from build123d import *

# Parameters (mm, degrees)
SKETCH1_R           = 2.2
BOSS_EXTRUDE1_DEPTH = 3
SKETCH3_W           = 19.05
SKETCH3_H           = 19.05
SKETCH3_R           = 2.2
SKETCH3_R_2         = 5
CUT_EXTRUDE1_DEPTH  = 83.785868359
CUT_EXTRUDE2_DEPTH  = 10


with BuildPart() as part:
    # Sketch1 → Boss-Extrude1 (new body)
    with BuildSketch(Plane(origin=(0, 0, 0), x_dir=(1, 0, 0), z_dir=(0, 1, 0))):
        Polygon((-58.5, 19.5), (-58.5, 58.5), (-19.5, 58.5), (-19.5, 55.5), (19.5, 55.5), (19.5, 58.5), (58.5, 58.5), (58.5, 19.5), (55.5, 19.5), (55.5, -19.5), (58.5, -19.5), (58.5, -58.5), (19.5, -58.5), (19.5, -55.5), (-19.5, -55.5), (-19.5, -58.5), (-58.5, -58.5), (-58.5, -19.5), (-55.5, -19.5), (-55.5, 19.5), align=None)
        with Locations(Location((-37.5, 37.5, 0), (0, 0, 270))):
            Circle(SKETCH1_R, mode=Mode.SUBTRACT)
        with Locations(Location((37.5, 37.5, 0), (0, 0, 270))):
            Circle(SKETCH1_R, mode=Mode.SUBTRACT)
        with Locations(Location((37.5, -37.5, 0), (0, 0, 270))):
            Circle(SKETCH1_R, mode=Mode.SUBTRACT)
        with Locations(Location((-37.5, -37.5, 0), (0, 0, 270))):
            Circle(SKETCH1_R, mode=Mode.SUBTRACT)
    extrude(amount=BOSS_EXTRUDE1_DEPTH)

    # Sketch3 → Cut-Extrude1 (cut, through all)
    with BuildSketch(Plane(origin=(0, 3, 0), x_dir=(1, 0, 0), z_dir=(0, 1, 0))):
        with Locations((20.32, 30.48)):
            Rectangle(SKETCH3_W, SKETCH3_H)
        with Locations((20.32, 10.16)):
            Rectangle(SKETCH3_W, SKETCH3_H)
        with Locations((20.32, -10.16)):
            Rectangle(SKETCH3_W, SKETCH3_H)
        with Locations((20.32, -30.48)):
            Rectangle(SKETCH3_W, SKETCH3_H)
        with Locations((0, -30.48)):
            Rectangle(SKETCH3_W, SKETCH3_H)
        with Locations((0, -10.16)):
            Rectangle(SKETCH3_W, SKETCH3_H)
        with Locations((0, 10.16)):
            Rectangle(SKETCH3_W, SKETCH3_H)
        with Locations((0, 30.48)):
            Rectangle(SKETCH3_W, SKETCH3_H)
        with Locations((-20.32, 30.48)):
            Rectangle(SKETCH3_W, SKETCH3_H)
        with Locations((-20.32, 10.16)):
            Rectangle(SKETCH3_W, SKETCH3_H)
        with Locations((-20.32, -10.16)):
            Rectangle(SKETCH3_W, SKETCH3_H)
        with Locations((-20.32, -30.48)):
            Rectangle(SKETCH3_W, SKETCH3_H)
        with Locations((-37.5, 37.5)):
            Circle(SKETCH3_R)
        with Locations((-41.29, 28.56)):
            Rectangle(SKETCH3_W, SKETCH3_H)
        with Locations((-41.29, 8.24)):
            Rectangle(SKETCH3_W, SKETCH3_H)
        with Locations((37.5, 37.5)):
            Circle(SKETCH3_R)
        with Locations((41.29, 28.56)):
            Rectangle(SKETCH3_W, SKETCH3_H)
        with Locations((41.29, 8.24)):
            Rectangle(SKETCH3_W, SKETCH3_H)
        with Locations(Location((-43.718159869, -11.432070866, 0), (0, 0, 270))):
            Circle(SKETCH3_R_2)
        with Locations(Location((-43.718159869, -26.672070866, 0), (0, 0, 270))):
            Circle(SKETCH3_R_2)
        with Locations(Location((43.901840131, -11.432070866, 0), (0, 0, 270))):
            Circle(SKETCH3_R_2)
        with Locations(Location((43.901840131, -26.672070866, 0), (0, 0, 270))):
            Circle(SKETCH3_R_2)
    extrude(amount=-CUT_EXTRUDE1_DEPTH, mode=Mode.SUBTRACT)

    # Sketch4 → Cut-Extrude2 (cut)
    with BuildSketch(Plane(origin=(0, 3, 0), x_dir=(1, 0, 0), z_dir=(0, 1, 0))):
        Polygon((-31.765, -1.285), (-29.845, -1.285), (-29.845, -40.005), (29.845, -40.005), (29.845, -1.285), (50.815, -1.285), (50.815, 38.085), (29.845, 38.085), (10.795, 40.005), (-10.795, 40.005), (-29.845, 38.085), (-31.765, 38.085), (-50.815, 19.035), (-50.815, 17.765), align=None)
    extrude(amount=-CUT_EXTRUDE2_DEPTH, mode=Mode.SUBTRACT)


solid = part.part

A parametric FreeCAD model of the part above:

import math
import FreeCAD as App
import Part
import Sketcher

V = App.Vector
Q = App.Units.Quantity


def add_polygon(sketch, points):
    """Adds a closed chain of lines whose ends are joined by coincident constraints."""
    first, n = sketch.GeometryCount, len(points)
    for a, b in zip(points, points[1:] + points[:1]):
        sketch.addGeometry(Part.LineSegment(App.Vector(*a, 0), App.Vector(*b, 0)), False)
    for i in range(n):
        sketch.addConstraint(Sketcher.Constraint("Coincident", first + i, 2, first + (i + 1) % n, 1))

doc = App.newDocument("Part")
body = doc.addObject("PartDesign::Body", "Body")

# Sketch on XZ plane
sketch1 = body.newObject("Sketcher::SketchObject", "Sketch")
sketch1.AttachmentSupport = (doc.getObject("XZ_Plane"), [""])
sketch1.MapMode = "FlatFace"
add_polygon(sketch1, [(-58.5, -58.5), (-58.5, -19.5), (-55.5, -19.5), (-55.5, 19.5), (-58.5, 19.5), (-58.5, 58.5), (-19.5, 58.5), (-19.5, 55.5), (19.5, 55.5), (19.5, 58.5), (58.5, 58.5), (58.5, 19.5), (55.5, 19.5), (55.5, -19.5), (58.5, -19.5), (58.5, -58.5), (19.5, -58.5), (19.5, -55.5), (-19.5, -55.5), (-19.5, -58.5)])  # lines 0-19
sketch1.addGeometry(Part.Circle(V(37.5, 37.5, 0), V(0, 0, 1), 2.2), False)  # 20
sketch1.addGeometry(Part.Circle(V(-37.5, 37.5, 0), V(0, 0, 1), 2.2), False)  # 21
sketch1.addGeometry(Part.Circle(V(37.5, -37.5, 0), V(0, 0, 1), 2.2), False)  # 22
sketch1.addGeometry(Part.Circle(V(-37.5, -37.5, 0), V(0, 0, 1), 2.2), False)  # 23
sketch1.addConstraint(Sketcher.Constraint("Vertical", 0))
sketch1.addConstraint(Sketcher.Constraint("Horizontal", 1))
sketch1.addConstraint(Sketcher.Constraint("Vertical", 2))
sketch1.addConstraint(Sketcher.Constraint("Horizontal", 3))
sketch1.addConstraint(Sketcher.Constraint("Vertical", 4))
sketch1.addConstraint(Sketcher.Constraint("Horizontal", 5))
sketch1.addConstraint(Sketcher.Constraint("Vertical", 6))
sketch1.addConstraint(Sketcher.Constraint("Horizontal", 7))
sketch1.addConstraint(Sketcher.Constraint("Vertical", 8))
sketch1.addConstraint(Sketcher.Constraint("Horizontal", 9))
sketch1.addConstraint(Sketcher.Constraint("Vertical", 10))
sketch1.addConstraint(Sketcher.Constraint("Horizontal", 11))
sketch1.addConstraint(Sketcher.Constraint("Vertical", 12))
sketch1.addConstraint(Sketcher.Constraint("Horizontal", 13))
sketch1.addConstraint(Sketcher.Constraint("Vertical", 14))
sketch1.addConstraint(Sketcher.Constraint("Horizontal", 15))
sketch1.addConstraint(Sketcher.Constraint("Vertical", 16))
sketch1.addConstraint(Sketcher.Constraint("Horizontal", 17))
sketch1.addConstraint(Sketcher.Constraint("Vertical", 18))
sketch1.addConstraint(Sketcher.Constraint("Horizontal", 19))
sketch1.addConstraint(Sketcher.Constraint("Equal", 20, 21))
sketch1.addConstraint(Sketcher.Constraint("Equal", 21, 22))
sketch1.addConstraint(Sketcher.Constraint("Equal", 22, 23))
sketch1.addConstraint(Sketcher.Constraint("Symmetric", 21, 3, 22, 3, -1, 1))
sketch1.addConstraint(Sketcher.Constraint("Symmetric", 20, 3, 23, 3, -1, 1))
sketch1.addConstraint(Sketcher.Constraint("Symmetric", 0, 2, 10, 2, -1, 1))
sketch1.addConstraint(Sketcher.Constraint("Symmetric", 2, 2, 12, 2, -1, 1))
sketch1.addConstraint(Sketcher.Constraint("Symmetric", 4, 2, 14, 2, -1, 1))
sketch1.addConstraint(Sketcher.Constraint("Symmetric", 6, 2, 16, 2, -1, 1))
sketch1.addConstraint(Sketcher.Constraint("Symmetric", 8, 2, 18, 2, -1, 1))
sketch1.addConstraint(Sketcher.Constraint("Symmetric", 20, 3, 21, 3, -2))
sketch1.addConstraint(Sketcher.Constraint("Symmetric", 5, 2, 8, 2, -2))
sketch1.addConstraint(Sketcher.Constraint("Symmetric", 3, 2, 10, 2, -2))
sketch1.addConstraint(Sketcher.Constraint("Equal", 5, 7))
sketch1.addConstraint(Sketcher.Constraint("Equal", 19, 0))
sketch1.addConstraint(Sketcher.Constraint("Equal", 0, 2))
sketch1.addConstraint(Sketcher.Constraint("Equal", 13, 6))
sketch1.addConstraint(Sketcher.Constraint("Diameter", 20, 4.4))
sketch1.addConstraint(Sketcher.Constraint("DistanceX", 1, 1, 1, 2, 3.0))
sketch1.addConstraint(Sketcher.Constraint("DistanceX", 5, 1, 5, 2, 39.0))
sketch1.addConstraint(Sketcher.Constraint("DistanceX", -1, 1, 20, 3, 37.5))
sketch1.addConstraint(Sketcher.Constraint("DistanceY", -1, 1, 20, 3, 37.5))
pad1 = body.newObject("PartDesign::Pad", "Pad")
pad1.Profile = sketch1
pad1.Length = 3
pad1.Reversed = True

# Sketch on XZ plane
sketch2 = body.newObject("Sketcher::SketchObject", "Sketch001")
sketch2.AttachmentSupport = (doc.getObject("XZ_Plane"), [""])
sketch2.MapMode = "FlatFace"
sketch2.AttachmentOffset = App.Placement(V(0, 0, -3), App.Rotation())
add_polygon(sketch2, [(10.795, -40.005), (10.795, -20.955), (29.845, -20.955), (29.845, -40.005)])  # lines 0-3
add_polygon(sketch2, [(10.795, -19.685), (10.795, -0.635), (29.845, -0.635), (29.845, -19.685)])  # lines 4-7
add_polygon(sketch2, [(10.795, 0.635), (10.795, 19.685), (29.845, 19.685), (29.845, 0.635)])  # lines 8-11
add_polygon(sketch2, [(10.795, 20.955), (10.795, 40.005), (29.845, 40.005), (29.845, 20.955)])  # lines 12-15
add_polygon(sketch2, [(-9.525, 20.955), (-9.525, 40.005), (9.525, 40.005), (9.525, 20.955)])  # lines 16-19
add_polygon(sketch2, [(-9.525, 0.635), (-9.525, 19.685), (9.525, 19.685), (9.525, 0.635)])  # lines 20-23
add_polygon(sketch2, [(-9.525, -19.685), (-9.525, -0.635), (9.525, -0.635), (9.525, -19.685)])  # lines 24-27
add_polygon(sketch2, [(-9.525, -40.005), (-9.525, -20.955), (9.525, -20.955), (9.525, -40.005)])  # lines 28-31
add_polygon(sketch2, [(-29.845, -40.005), (-29.845, -20.955), (-10.795, -20.955), (-10.795, -40.005)])  # lines 32-35
add_polygon(sketch2, [(-29.845, -19.685), (-29.845, -0.635), (-10.795, -0.635), (-10.795, -19.685)])  # lines 36-39
add_polygon(sketch2, [(-29.845, 0.635), (-29.845, 19.685), (-10.795, 19.685), (-10.795, 0.635)])  # lines 40-43
add_polygon(sketch2, [(-29.845, 20.955), (-29.845, 40.005), (-10.795, 40.005), (-10.795, 20.955)])  # lines 44-47
sketch2.addGeometry(Part.LineSegment(V(-50.815, -38.085, 0), V(-50.815, -19.035, 0)), False)  # 48
sketch2.addGeometry(Part.LineSegment(V(-50.815, -19.035, 0), V(-31.765, -19.035, 0)), False)  # 49
sketch2.addGeometry(Part.LineSegment(V(-31.765, -19.035, 0), V(-31.765, -38.085, 0)), False)  # 50
sketch2.addGeometry(Part.LineSegment(V(-31.765, -38.085, 0), V(-35.379204, -38.085, 0)), False)  # 51
sketch2.addGeometry(Part.ArcOfCircle(Part.Circle(V(-37.5, -37.5, 0), V(0, 0, 1), 2.2), math.radians(-164.579022), math.radians(-15.420978)), False)  # 52
sketch2.addGeometry(Part.LineSegment(V(-39.620796, -38.085, 0), V(-50.815, -38.085, 0)), False)  # 53
add_polygon(sketch2, [(-50.815, -17.765), (-50.815, 1.285), (-31.765, 1.285), (-31.765, -17.765)])  # lines 54-57
sketch2.addGeometry(Part.LineSegment(V(31.765, -38.085, 0), V(31.765, -19.035, 0)), False)  # 58
sketch2.addGeometry(Part.LineSegment(V(31.765, -19.035, 0), V(50.815, -19.035, 0)), False)  # 59
sketch2.addGeometry(Part.LineSegment(V(50.815, -19.035, 0), V(50.815, -38.085, 0)), False)  # 60
sketch2.addGeometry(Part.LineSegment(V(50.815, -38.085, 0), V(39.620796, -38.085, 0)), False)  # 61
sketch2.addGeometry(Part.ArcOfCircle(Part.Circle(V(37.5, -37.5, 0), V(0, 0, 1), 2.2), math.radians(-164.579022), math.radians(-15.420978)), False)  # 62
sketch2.addGeometry(Part.LineSegment(V(35.379204, -38.085, 0), V(31.765, -38.085, 0)), False)  # 63
add_polygon(sketch2, [(31.765, -17.765), (31.765, 1.285), (50.815, 1.285), (50.815, -17.765)])  # lines 64-67
sketch2.addGeometry(Part.Circle(V(-43.71816, 11.432071, 0), V(0, 0, 1), 5), False)  # 68
sketch2.addGeometry(Part.Circle(V(-43.71816, 26.672071, 0), V(0, 0, 1), 5), False)  # 69
sketch2.addGeometry(Part.Circle(V(43.90184, 11.432071, 0), V(0, 0, 1), 5), False)  # 70
sketch2.addGeometry(Part.Circle(V(43.90184, 26.672071, 0), V(0, 0, 1), 5), False)  # 71
sketch2.addConstraint(Sketcher.Constraint("Coincident", 48, 2, 49, 1))
sketch2.addConstraint(Sketcher.Constraint("Coincident", 49, 2, 50, 1))
sketch2.addConstraint(Sketcher.Constraint("Coincident", 50, 2, 51, 1))
sketch2.addConstraint(Sketcher.Constraint("Coincident", 51, 2, 52, 2))
sketch2.addConstraint(Sketcher.Constraint("Coincident", 52, 1, 53, 1))
sketch2.addConstraint(Sketcher.Constraint("Coincident", 53, 2, 48, 1))
sketch2.addConstraint(Sketcher.Constraint("Coincident", 58, 2, 59, 1))
sketch2.addConstraint(Sketcher.Constraint("Coincident", 59, 2, 60, 1))
sketch2.addConstraint(Sketcher.Constraint("Coincident", 60, 2, 61, 1))
sketch2.addConstraint(Sketcher.Constraint("Coincident", 61, 2, 62, 2))
sketch2.addConstraint(Sketcher.Constraint("Coincident", 62, 1, 63, 1))
sketch2.addConstraint(Sketcher.Constraint("Coincident", 63, 2, 58, 1))
sketch2.addConstraint(Sketcher.Constraint("Vertical", 0))
sketch2.addConstraint(Sketcher.Constraint("Horizontal", 1))
sketch2.addConstraint(Sketcher.Constraint("Vertical", 2))
sketch2.addConstraint(Sketcher.Constraint("Horizontal", 3))
sketch2.addConstraint(Sketcher.Constraint("Vertical", 4))
sketch2.addConstraint(Sketcher.Constraint("Horizontal", 5))
sketch2.addConstraint(Sketcher.Constraint("Vertical", 6))
sketch2.addConstraint(Sketcher.Constraint("Horizontal", 7))
sketch2.addConstraint(Sketcher.Constraint("Vertical", 8))
sketch2.addConstraint(Sketcher.Constraint("Horizontal", 9))
sketch2.addConstraint(Sketcher.Constraint("Vertical", 10))
sketch2.addConstraint(Sketcher.Constraint("Horizontal", 11))
sketch2.addConstraint(Sketcher.Constraint("Vertical", 12))
sketch2.addConstraint(Sketcher.Constraint("Horizontal", 13))
sketch2.addConstraint(Sketcher.Constraint("Vertical", 14))
sketch2.addConstraint(Sketcher.Constraint("Horizontal", 15))
sketch2.addConstraint(Sketcher.Constraint("Vertical", 16))
sketch2.addConstraint(Sketcher.Constraint("Horizontal", 17))
sketch2.addConstraint(Sketcher.Constraint("Vertical", 18))
sketch2.addConstraint(Sketcher.Constraint("Horizontal", 19))
sketch2.addConstraint(Sketcher.Constraint("Vertical", 20))
sketch2.addConstraint(Sketcher.Constraint("Horizontal", 21))
sketch2.addConstraint(Sketcher.Constraint("Vertical", 22))
sketch2.addConstraint(Sketcher.Constraint("Horizontal", 23))
sketch2.addConstraint(Sketcher.Constraint("Vertical", 24))
sketch2.addConstraint(Sketcher.Constraint("Horizontal", 25))
sketch2.addConstraint(Sketcher.Constraint("Vertical", 26))
sketch2.addConstraint(Sketcher.Constraint("Horizontal", 27))
sketch2.addConstraint(Sketcher.Constraint("Vertical", 28))
sketch2.addConstraint(Sketcher.Constraint("Horizontal", 29))
sketch2.addConstraint(Sketcher.Constraint("Vertical", 30))
sketch2.addConstraint(Sketcher.Constraint("Horizontal", 31))
sketch2.addConstraint(Sketcher.Constraint("Vertical", 32))
sketch2.addConstraint(Sketcher.Constraint("Horizontal", 33))
sketch2.addConstraint(Sketcher.Constraint("Vertical", 34))
sketch2.addConstraint(Sketcher.Constraint("Horizontal", 35))
sketch2.addConstraint(Sketcher.Constraint("Vertical", 36))
sketch2.addConstraint(Sketcher.Constraint("Horizontal", 37))
sketch2.addConstraint(Sketcher.Constraint("Vertical", 38))
sketch2.addConstraint(Sketcher.Constraint("Horizontal", 39))
sketch2.addConstraint(Sketcher.Constraint("Vertical", 40))
sketch2.addConstraint(Sketcher.Constraint("Horizontal", 41))
sketch2.addConstraint(Sketcher.Constraint("Vertical", 42))
sketch2.addConstraint(Sketcher.Constraint("Horizontal", 43))
sketch2.addConstraint(Sketcher.Constraint("Vertical", 44))
sketch2.addConstraint(Sketcher.Constraint("Horizontal", 45))
sketch2.addConstraint(Sketcher.Constraint("Vertical", 46))
sketch2.addConstraint(Sketcher.Constraint("Horizontal", 47))
sketch2.addConstraint(Sketcher.Constraint("Vertical", 48))
sketch2.addConstraint(Sketcher.Constraint("Horizontal", 49))
sketch2.addConstraint(Sketcher.Constraint("Vertical", 50))
sketch2.addConstraint(Sketcher.Constraint("Horizontal", 51))
sketch2.addConstraint(Sketcher.Constraint("Horizontal", 53))
sketch2.addConstraint(Sketcher.Constraint("Vertical", 54))
sketch2.addConstraint(Sketcher.Constraint("Horizontal", 55))
sketch2.addConstraint(Sketcher.Constraint("Vertical", 56))
sketch2.addConstraint(Sketcher.Constraint("Horizontal", 57))
sketch2.addConstraint(Sketcher.Constraint("Vertical", 58))
sketch2.addConstraint(Sketcher.Constraint("Horizontal", 59))
sketch2.addConstraint(Sketcher.Constraint("Vertical", 60))
sketch2.addConstraint(Sketcher.Constraint("Horizontal", 61))
sketch2.addConstraint(Sketcher.Constraint("Horizontal", 63))
sketch2.addConstraint(Sketcher.Constraint("Vertical", 64))
sketch2.addConstraint(Sketcher.Constraint("Horizontal", 65))
sketch2.addConstraint(Sketcher.Constraint("Vertical", 66))
sketch2.addConstraint(Sketcher.Constraint("Horizontal", 67))
sketch2.addConstraint(Sketcher.Constraint("Equal", 52, 62))
sketch2.addConstraint(Sketcher.Constraint("Equal", 68, 69))
sketch2.addConstraint(Sketcher.Constraint("Equal", 69, 70))
sketch2.addConstraint(Sketcher.Constraint("Equal", 70, 71))
sketch2.addConstraint(Sketcher.Constraint("Symmetric", 22, 2, 24, 2, -1, 1))
sketch2.addConstraint(Sketcher.Constraint("Symmetric", 20, 2, 26, 2, -1, 1))
sketch2.addConstraint(Sketcher.Constraint("Symmetric", 18, 2, 28, 2, -1, 1))
sketch2.addConstraint(Sketcher.Constraint("Symmetric", 16, 2, 30, 2, -1, 1))
sketch2.addConstraint(Sketcher.Constraint("Symmetric", 14, 2, 32, 2, -1, 1))
sketch2.addConstraint(Sketcher.Constraint("Symmetric", 12, 2, 34, 2, -1, 1))
sketch2.addConstraint(Sketcher.Constraint("Symmetric", 10, 2, 36, 2, -1, 1))
sketch2.addConstraint(Sketcher.Constraint("Symmetric", 8, 2, 38, 2, -1, 1))
sketch2.addConstraint(Sketcher.Constraint("Symmetric", 6, 2, 40, 2, -1, 1))
sketch2.addConstraint(Sketcher.Constraint("Symmetric", 4, 2, 42, 2, -1, 1))
sketch2.addConstraint(Sketcher.Constraint("Symmetric", 2, 2, 44, 2, -1, 1))
sketch2.addConstraint(Sketcher.Constraint("Symmetric", 0, 2, 46, 2, -1, 1))
sketch2.addConstraint(Sketcher.Constraint("Symmetric", 52, 3, 62, 3, -2))
sketch2.addConstraint(Sketcher.Constraint("Symmetric", 1, 2, 32, 2, -2))
sketch2.addConstraint(Sketcher.Constraint("Symmetric", 3, 2, 34, 2, -2))
sketch2.addConstraint(Sketcher.Constraint("Symmetric", 5, 2, 36, 2, -2))
sketch2.addConstraint(Sketcher.Constraint("Symmetric", 7, 2, 38, 2, -2))
sketch2.addConstraint(Sketcher.Constraint("Symmetric", 49, 2, 58, 2, -2))
sketch2.addConstraint(Sketcher.Constraint("Symmetric", 53, 2, 60, 2, -2))
sketch2.addConstraint(Sketcher.Constraint("Symmetric", 55, 2, 64, 2, -2))
sketch2.addConstraint(Sketcher.Constraint("Symmetric", 57, 2, 66, 2, -2))
sketch2.addConstraint(Sketcher.Constraint("Horizontal", 68, 3, 70, 3))
sketch2.addConstraint(Sketcher.Constraint("Horizontal", 69, 3, 71, 3))
sketch2.addConstraint(Sketcher.Constraint("Horizontal", 13, 2, 16, 2))
sketch2.addConstraint(Sketcher.Constraint("Horizontal", 15, 2, 18, 2))
sketch2.addConstraint(Sketcher.Constraint("Horizontal", 9, 2, 20, 2))
sketch2.addConstraint(Sketcher.Constraint("Horizontal", 11, 2, 22, 2))
sketch2.addConstraint(Sketcher.Constraint("Horizontal", 51, 2, 52, 1))
sketch2.addConstraint(Sketcher.Constraint("Horizontal", 61, 2, 62, 1))
sketch2.addConstraint(Sketcher.Constraint("Vertical", 68, 3, 69, 3))
sketch2.addConstraint(Sketcher.Constraint("Vertical", 70, 3, 71, 3))
sketch2.addConstraint(Sketcher.Constraint("Vertical", 3, 2, 4, 2))
sketch2.addConstraint(Sketcher.Constraint("Vertical", 2, 2, 5, 2))
sketch2.addConstraint(Sketcher.Constraint("Vertical", 19, 2, 20, 2))
sketch2.addConstraint(Sketcher.Constraint("Vertical", 18, 2, 21, 2))
sketch2.addConstraint(Sketcher.Constraint("Vertical", 23, 2, 24, 2))
sketch2.addConstraint(Sketcher.Constraint("Vertical", 53, 2, 54, 2))
sketch2.addConstraint(Sketcher.Constraint("Vertical", 50, 2, 55, 2))
sketch2.addConstraint(Sketcher.Constraint("Equal", 15, 17))
sketch2.addConstraint(Sketcher.Constraint("Equal", 47, 49))
sketch2.addConstraint(Sketcher.Constraint("Equal", 67, 0))
sketch2.addConstraint(Sketcher.Constraint("Equal", 2, 4))
sketch2.addConstraint(Sketcher.Constraint("Equal", 46, 48))
sketch2.addConstraint(Sketcher.Constraint("Equal", 50, 54))
sketch2.addConstraint(Sketcher.Constraint("DistanceX", 1, 1, 1, 2, Q("0.75 in")))
sketch2.addConstraint(Sketcher.Constraint("Diameter", 68, 10.0))
sketch2.addConstraint(Sketcher.Constraint("Radius", 52, 2.2))
sketch2.addConstraint(Sketcher.Constraint("DistanceX", -1, 1, 0, 2, Q("0.425 in")))
sketch2.addConstraint(Sketcher.Constraint("DistanceY", 0, 2, -1, 1, Q("0.825 in")))
sketch2.addConstraint(Sketcher.Constraint("DistanceY", 4, 2, -1, 1, Q("0.025 in")))
sketch2.addConstraint(Sketcher.Constraint("DistanceX", 52, 3, -1, 1, 37.5))
sketch2.addConstraint(Sketcher.Constraint("DistanceY", 52, 3, -1, 1, 37.5))
sketch2.addConstraint(Sketcher.Constraint("DistanceX", 48, 2, -1, 1, 50.815))
sketch2.addConstraint(Sketcher.Constraint("DistanceY", 48, 2, -1, 1, 19.035))
sketch2.addConstraint(Sketcher.Constraint("DistanceY", -1, 1, 54, 2, 1.285))
sketch2.addConstraint(Sketcher.Constraint("DistanceX", 68, 3, -1, 1, 43.71816))
sketch2.addConstraint(Sketcher.Constraint("DistanceY", -1, 1, 68, 3, 11.432071))
sketch2.addConstraint(Sketcher.Constraint("DistanceY", -1, 1, 69, 3, 26.672071))
sketch2.addConstraint(Sketcher.Constraint("DistanceX", -1, 1, 70, 3, 43.90184))
pocket1 = body.newObject("PartDesign::Pocket", "Pocket")
pocket1.Profile = sketch2
pocket1.Type = "ThroughAll"
pocket1.Reversed = True

# Sketch on XZ plane
sketch3 = body.newObject("Sketcher::SketchObject", "Sketch002")
sketch3.AttachmentSupport = (doc.getObject("XZ_Plane"), [""])
sketch3.MapMode = "FlatFace"
sketch3.AttachmentOffset = App.Placement(V(0, 0, -3), App.Rotation())
add_polygon(sketch3, [(-31.765, 1.285), (-29.845, 1.285), (-29.845, 40.005), (29.845, 40.005), (29.845, 1.285), (50.815, 1.285), (50.815, -38.085), (29.845, -38.085), (10.795, -40.005), (-10.795, -40.005), (-29.845, -38.085), (-31.765, -38.085), (-50.815, -19.035), (-50.815, -17.765)])  # lines 0-13
sketch3.addConstraint(Sketcher.Constraint("Horizontal", 0))
sketch3.addConstraint(Sketcher.Constraint("Vertical", 1))
sketch3.addConstraint(Sketcher.Constraint("Horizontal", 2))
sketch3.addConstraint(Sketcher.Constraint("Vertical", 3))
sketch3.addConstraint(Sketcher.Constraint("Horizontal", 4))
sketch3.addConstraint(Sketcher.Constraint("Vertical", 5))
sketch3.addConstraint(Sketcher.Constraint("Horizontal", 6))
sketch3.addConstraint(Sketcher.Constraint("Horizontal", 8))
sketch3.addConstraint(Sketcher.Constraint("Horizontal", 10))
sketch3.addConstraint(Sketcher.Constraint("Vertical", 12))
sketch3.addConstraint(Sketcher.Constraint("Symmetric", 0, 2, 3, 2, -2))
sketch3.addConstraint(Sketcher.Constraint("Symmetric", 6, 2, 9, 2, -2))
sketch3.addConstraint(Sketcher.Constraint("Perpendicular", 11, 13))
sketch3.addConstraint(Sketcher.Constraint("Vertical", 3, 2, 6, 2))
sketch3.addConstraint(Sketcher.Constraint("Vertical", 10, 2, 13, 2))
sketch3.addConstraint(Sketcher.Constraint("Equal", 7, 9))
sketch3.addConstraint(Sketcher.Constraint("Equal", 11, 13))
sketch3.addConstraint(Sketcher.Constraint("DistanceX", 2, 1, 2, 2, Q("2.35 in")))
sketch3.addConstraint(Sketcher.Constraint("DistanceX", 8, 2, 8, 1, Q("0.85 in")))
sketch3.addConstraint(Sketcher.Constraint("DistanceY", 5, 2, 5, 1, Q("1.55 in")))
sketch3.addConstraint(Sketcher.Constraint("DistanceY", 12, 1, 12, 2, Q("0.05 in")))
sketch3.addConstraint(Sketcher.Constraint("DistanceY", -1, 1, 1, 2, Q("1.575 in")))
sketch3.addConstraint(Sketcher.Constraint("DistanceY", 7, 2, -1, 1, Q("1.575 in")))
sketch3.addConstraint(Sketcher.Constraint("DistanceX", 0, 1, 0, 2, 1.92))
sketch3.addConstraint(Sketcher.Constraint("DistanceX", 4, 1, 4, 2, 20.97))
sketch3.addConstraint(Sketcher.Constraint("DistanceY", 1, 1, 1, 2, 38.72))
pocket2 = body.newObject("PartDesign::Pocket", "Pocket001")
pocket2.Profile = sketch3
pocket2.Length = 10
pocket2.Reversed = True

doc.recompute()
